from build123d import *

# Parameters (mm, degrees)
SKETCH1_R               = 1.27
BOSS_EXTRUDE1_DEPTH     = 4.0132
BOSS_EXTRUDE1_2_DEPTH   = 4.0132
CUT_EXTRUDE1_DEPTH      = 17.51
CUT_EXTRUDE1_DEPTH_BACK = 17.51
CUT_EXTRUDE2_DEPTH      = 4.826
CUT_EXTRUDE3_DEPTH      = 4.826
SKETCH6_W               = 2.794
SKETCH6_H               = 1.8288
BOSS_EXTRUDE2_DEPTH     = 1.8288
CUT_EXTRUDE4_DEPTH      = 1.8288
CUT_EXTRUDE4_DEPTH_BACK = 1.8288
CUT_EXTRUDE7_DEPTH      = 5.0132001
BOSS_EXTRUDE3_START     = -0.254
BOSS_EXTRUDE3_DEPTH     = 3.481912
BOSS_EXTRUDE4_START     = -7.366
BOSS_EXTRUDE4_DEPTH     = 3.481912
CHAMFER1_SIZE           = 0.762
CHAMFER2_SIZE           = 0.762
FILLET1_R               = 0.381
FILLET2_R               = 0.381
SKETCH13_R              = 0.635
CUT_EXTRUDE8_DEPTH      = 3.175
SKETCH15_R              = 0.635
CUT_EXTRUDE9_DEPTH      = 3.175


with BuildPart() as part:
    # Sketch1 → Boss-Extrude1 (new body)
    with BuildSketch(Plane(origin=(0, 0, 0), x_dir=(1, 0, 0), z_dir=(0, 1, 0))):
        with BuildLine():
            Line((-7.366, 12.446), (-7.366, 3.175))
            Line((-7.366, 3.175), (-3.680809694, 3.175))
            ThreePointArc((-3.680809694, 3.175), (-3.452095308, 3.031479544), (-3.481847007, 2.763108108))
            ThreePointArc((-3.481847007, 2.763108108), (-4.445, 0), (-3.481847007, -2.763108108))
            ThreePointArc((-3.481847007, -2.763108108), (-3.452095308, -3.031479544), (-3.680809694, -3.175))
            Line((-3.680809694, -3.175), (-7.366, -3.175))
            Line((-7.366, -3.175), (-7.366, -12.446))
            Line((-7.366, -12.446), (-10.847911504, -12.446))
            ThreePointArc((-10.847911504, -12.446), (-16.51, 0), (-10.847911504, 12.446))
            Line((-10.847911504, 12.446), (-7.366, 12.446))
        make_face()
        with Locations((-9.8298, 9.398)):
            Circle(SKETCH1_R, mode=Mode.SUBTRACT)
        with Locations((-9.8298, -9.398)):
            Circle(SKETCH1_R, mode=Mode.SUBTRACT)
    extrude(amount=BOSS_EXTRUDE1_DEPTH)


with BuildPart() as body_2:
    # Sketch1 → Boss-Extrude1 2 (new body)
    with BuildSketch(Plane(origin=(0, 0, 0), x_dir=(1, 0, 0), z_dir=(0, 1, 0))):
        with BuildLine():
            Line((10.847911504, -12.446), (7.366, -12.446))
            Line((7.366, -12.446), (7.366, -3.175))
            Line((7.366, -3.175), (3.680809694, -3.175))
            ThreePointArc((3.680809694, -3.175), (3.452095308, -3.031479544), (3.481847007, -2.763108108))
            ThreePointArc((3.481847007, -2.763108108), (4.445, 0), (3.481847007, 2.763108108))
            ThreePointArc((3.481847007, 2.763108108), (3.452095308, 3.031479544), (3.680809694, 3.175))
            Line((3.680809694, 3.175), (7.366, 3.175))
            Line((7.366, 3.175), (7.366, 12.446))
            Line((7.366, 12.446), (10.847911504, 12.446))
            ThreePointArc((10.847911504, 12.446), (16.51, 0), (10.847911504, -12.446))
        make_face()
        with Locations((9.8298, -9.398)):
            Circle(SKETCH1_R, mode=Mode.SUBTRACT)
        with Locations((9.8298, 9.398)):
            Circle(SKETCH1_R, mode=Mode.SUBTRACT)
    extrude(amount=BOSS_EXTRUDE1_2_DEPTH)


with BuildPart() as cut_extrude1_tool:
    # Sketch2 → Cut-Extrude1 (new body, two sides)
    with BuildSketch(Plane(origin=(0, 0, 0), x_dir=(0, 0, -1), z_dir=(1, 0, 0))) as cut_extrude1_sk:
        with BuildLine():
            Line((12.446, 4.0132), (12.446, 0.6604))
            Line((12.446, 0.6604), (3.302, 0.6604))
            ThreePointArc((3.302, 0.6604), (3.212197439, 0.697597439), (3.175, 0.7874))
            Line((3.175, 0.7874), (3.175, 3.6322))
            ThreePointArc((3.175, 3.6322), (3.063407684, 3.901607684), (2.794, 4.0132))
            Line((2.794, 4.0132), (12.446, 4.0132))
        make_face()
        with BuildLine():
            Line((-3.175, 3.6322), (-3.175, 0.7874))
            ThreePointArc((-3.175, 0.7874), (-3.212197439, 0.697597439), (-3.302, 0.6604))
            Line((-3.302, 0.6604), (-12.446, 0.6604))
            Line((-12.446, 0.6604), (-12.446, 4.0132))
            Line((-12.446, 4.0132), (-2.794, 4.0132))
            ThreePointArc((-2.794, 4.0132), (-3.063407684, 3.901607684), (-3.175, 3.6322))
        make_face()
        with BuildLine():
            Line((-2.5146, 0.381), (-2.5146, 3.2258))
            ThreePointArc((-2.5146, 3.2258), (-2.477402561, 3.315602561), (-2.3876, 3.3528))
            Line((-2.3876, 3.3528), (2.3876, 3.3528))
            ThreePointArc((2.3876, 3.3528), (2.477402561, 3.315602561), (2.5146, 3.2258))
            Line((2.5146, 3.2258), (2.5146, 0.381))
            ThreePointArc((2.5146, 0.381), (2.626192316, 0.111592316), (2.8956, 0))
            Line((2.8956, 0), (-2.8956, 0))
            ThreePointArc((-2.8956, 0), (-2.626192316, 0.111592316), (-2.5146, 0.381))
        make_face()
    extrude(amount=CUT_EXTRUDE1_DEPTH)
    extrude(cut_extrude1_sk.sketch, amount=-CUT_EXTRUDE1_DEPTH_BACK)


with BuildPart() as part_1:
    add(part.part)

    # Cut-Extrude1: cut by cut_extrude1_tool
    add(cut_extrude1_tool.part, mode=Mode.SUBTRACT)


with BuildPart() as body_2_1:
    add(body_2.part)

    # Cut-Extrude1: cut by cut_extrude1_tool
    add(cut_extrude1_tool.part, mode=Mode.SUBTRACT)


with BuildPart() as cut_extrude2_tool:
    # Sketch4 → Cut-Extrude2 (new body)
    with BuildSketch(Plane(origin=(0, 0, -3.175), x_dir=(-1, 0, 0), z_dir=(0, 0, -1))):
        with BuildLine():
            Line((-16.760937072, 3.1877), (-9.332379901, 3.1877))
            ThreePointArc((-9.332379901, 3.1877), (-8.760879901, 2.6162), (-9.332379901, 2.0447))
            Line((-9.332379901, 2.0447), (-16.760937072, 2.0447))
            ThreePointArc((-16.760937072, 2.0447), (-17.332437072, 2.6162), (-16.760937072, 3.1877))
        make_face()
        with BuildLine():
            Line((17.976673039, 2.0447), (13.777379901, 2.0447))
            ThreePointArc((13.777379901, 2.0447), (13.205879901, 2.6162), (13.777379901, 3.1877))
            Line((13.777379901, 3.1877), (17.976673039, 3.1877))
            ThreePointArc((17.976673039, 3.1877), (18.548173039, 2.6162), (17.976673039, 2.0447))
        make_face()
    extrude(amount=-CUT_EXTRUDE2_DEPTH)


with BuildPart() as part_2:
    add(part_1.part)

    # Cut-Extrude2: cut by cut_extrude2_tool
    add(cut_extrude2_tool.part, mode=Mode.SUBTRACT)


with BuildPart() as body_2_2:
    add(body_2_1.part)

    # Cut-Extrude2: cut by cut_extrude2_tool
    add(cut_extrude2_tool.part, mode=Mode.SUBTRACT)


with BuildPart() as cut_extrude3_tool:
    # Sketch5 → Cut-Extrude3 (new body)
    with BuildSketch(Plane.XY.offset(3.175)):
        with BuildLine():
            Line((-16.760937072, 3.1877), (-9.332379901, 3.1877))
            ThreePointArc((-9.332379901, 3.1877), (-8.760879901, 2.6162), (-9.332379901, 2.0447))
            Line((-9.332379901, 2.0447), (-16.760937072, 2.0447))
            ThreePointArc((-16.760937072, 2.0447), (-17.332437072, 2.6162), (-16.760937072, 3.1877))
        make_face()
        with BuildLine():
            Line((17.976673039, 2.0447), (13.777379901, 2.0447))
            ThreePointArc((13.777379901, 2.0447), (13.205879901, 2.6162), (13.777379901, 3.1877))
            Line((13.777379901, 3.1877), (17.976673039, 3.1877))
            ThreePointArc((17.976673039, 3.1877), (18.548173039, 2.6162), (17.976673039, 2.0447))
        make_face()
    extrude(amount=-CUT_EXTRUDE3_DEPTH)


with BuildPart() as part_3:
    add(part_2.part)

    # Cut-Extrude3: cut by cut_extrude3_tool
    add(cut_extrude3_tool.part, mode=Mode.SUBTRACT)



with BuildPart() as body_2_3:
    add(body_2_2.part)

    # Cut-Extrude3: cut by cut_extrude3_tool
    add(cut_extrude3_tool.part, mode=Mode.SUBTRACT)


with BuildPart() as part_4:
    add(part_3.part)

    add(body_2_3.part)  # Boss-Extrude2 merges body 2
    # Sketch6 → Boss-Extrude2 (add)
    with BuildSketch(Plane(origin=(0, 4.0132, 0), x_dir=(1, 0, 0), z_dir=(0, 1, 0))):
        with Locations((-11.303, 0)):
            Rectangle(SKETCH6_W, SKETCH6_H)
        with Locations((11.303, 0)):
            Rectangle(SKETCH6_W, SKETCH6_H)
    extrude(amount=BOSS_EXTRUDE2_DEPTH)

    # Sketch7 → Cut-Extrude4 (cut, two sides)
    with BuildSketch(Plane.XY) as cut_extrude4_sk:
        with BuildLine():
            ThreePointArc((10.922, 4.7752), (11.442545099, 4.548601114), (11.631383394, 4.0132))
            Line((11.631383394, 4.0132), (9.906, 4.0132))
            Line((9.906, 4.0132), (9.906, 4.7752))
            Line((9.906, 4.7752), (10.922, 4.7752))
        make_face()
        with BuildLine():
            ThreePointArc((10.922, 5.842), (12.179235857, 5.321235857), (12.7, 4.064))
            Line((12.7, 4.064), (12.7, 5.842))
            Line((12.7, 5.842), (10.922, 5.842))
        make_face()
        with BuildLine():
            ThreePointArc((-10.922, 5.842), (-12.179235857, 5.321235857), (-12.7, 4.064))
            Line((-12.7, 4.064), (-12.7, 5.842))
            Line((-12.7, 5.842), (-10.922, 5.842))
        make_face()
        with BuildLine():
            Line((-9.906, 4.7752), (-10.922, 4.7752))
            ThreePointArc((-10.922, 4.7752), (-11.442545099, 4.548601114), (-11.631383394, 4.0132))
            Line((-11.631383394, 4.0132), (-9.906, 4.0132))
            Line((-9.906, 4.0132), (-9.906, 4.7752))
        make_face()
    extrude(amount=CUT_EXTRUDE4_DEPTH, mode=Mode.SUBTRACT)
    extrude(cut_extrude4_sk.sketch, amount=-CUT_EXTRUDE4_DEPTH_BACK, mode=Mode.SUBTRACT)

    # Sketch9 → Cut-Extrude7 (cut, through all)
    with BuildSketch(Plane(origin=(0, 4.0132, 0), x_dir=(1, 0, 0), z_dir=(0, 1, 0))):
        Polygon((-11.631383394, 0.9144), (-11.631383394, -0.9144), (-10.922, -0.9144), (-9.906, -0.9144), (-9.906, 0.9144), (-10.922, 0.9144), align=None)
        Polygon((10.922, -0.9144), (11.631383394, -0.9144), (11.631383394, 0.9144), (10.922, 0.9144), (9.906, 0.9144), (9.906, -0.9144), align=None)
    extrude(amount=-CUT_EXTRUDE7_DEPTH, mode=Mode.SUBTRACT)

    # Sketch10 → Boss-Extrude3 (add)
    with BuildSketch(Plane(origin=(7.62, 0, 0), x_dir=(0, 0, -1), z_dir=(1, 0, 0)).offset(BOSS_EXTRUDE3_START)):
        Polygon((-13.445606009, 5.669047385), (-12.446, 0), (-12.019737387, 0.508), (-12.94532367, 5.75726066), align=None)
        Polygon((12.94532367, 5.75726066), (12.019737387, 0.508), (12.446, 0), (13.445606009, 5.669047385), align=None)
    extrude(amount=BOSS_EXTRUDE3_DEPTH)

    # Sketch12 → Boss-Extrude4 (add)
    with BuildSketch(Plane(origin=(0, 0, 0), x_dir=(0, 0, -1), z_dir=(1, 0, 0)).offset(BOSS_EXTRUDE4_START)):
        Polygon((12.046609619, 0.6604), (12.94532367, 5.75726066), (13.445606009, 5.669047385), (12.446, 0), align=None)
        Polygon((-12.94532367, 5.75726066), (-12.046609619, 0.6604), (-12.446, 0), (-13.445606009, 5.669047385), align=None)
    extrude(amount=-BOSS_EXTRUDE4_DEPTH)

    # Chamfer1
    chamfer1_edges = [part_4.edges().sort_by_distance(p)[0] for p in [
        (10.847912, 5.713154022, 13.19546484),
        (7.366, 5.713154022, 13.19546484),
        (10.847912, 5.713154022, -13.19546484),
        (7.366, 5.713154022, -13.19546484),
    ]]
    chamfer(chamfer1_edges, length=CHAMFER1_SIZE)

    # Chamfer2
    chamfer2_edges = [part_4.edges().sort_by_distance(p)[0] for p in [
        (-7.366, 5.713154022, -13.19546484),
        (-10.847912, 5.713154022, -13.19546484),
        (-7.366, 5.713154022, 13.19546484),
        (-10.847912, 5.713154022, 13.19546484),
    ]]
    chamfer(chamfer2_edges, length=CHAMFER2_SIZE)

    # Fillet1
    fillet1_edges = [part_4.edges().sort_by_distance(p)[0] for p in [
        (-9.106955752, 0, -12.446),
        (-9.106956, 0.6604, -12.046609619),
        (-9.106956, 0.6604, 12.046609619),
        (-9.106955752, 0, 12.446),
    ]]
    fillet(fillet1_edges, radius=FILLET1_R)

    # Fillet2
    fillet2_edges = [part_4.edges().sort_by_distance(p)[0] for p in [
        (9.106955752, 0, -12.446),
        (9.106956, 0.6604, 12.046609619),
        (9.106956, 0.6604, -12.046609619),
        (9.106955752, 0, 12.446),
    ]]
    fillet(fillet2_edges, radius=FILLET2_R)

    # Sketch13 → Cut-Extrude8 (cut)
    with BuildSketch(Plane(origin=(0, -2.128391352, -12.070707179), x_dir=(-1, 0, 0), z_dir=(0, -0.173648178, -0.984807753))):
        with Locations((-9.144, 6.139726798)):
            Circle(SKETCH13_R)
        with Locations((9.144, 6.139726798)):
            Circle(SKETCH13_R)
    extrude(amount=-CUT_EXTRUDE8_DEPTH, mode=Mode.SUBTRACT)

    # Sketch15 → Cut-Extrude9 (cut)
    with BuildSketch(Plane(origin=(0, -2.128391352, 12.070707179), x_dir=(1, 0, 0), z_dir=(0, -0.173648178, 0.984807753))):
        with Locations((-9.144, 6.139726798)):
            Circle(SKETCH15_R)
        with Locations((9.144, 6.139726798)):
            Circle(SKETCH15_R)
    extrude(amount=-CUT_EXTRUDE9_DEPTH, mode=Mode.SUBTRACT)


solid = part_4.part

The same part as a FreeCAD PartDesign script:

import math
import FreeCAD as App
import Part
import Sketcher
from FreeCAD import Vector
Q = App.Units.Quantity


def edges_at(feature, points):
    """Names of the edges that pass closest to the given points."""
    edges = feature.Shape.Edges
    near = lambda p: min(range(len(edges)), key=lambda i: edges[i].distToShape(Part.Vertex(*p))[0])
    return sorted({f"Edge{near(p) + 1}" for p in points})

doc = App.newDocument("Part")
body = doc.addObject("PartDesign::Body", "Body")

# Sketch on XZ plane
sketch1 = doc.addObject("Sketcher::SketchObject", "Sketch")
body.addObject(sketch1)
sketch1.AttachmentSupport = (doc.XZ_Plane, [""])
sketch1.MapMode = "FlatFace"
sketch1.addGeometry(Part.LineSegment(Vector(-7.37, -3.17, 0), Vector(-7.37, -12.45, 0)), False)
sketch1.addGeometry(Part.LineSegment(Vector(-7.37, -12.45, 0), Vector(-10.85, -12.45, 0)), False)
sketch1.addGeometry(Part.ArcOfCircle(Part.Circle(Vector(0, 0, 0), Vector(0, 0, 1), 16.51), math.radians(131), math.radians(229)), False)
sketch1.addGeometry(Part.LineSegment(Vector(-10.85, 12.45, 0), Vector(-7.37, 12.45, 0)), False)
sketch1.addGeometry(Part.LineSegment(Vector(-7.37, 12.45, 0), Vector(-7.37, 3.17, 0)), False)
sketch1.addGeometry(Part.LineSegment(Vector(-7.37, 3.17, 0), Vector(-3.68, 3.17, 0)), False)
sketch1.addGeometry(Part.ArcOfCircle(Part.Circle(Vector(-3.68, 2.92, 0), Vector(0, 0, 1), 0.25), math.radians(-38), math.radians(90)), False)
sketch1.addGeometry(Part.ArcOfCircle(Part.Circle(Vector(0, 0, 0), Vector(0, 0, 1), 4.44), math.radians(142), math.radians(218)), False)
sketch1.addGeometry(Part.ArcOfCircle(Part.Circle(Vector(-3.68, -2.92, 0), Vector(0, 0, 1), 0.25), math.radians(-90), math.radians(38)), False)
sketch1.addGeometry(Part.LineSegment(Vector(-3.68, -3.17, 0), Vector(-7.37, -3.17, 0)), False)
sketch1.addGeometry(Part.Circle(Vector(-9.83, 9.4, 0), Vector(0, 0, 1), 1.27), False)
sketch1.addGeometry(Part.Circle(Vector(-9.83, -9.4, 0), Vector(0, 0, 1), 1.27), False)
sketch1.addConstraint(Sketcher.Constraint("Coincident", 0, 2, 1, 1))
sketch1.addConstraint(Sketcher.Constraint("Coincident", 1, 2, 2, 2))
sketch1.addConstraint(Sketcher.Constraint("Coincident", 2, 1, 3, 1))
sketch1.addConstraint(Sketcher.Constraint("Coincident", 3, 2, 4, 1))
sketch1.addConstraint(Sketcher.Constraint("Coincident", 4, 2, 5, 1))
sketch1.addConstraint(Sketcher.Constraint("Tangent", 5, 2, 6, 2))
sketch1.addConstraint(Sketcher.Constraint("Tangent", 6, 1, 7, 1))
sketch1.addConstraint(Sketcher.Constraint("Tangent", 7, 2, 8, 2))
sketch1.addConstraint(Sketcher.Constraint("Tangent", 8, 1, 9, 1))
sketch1.addConstraint(Sketcher.Constraint("Coincident", 9, 2, 0, 1))
sketch1.addConstraint(Sketcher.Constraint("Vertical", 0))
sketch1.addConstraint(Sketcher.Constraint("Horizontal", 1))
sketch1.addConstraint(Sketcher.Constraint("Horizontal", 3))
sketch1.addConstraint(Sketcher.Constraint("Vertical", 4))
sketch1.addConstraint(Sketcher.Constraint("Horizontal", 5))
sketch1.addConstraint(Sketcher.Constraint("Horizontal", 9))
sketch1.addConstraint(Sketcher.Constraint("Coincident", 2, 3, -1, 1))
sketch1.addConstraint(Sketcher.Constraint("Coincident", 7, 3, -1, 1))
sketch1.addConstraint(Sketcher.Constraint("Equal", 6, 8))
sketch1.addConstraint(Sketcher.Constraint("Equal", 10, 11))
sketch1.addConstraint(Sketcher.Constraint("Symmetric", 10, 3, 11, 3, -1))
sketch1.addConstraint(Sketcher.Constraint("Symmetric", 0, 2, 3, 2, -1))
sketch1.addConstraint(Sketcher.Constraint("Vertical", 6, 3, 8, 3))
sketch1.addConstraint(Sketcher.Constraint("Diameter", 10, Q("0.1 in")))
sketch1.addConstraint(Sketcher.Constraint("Radius", 2, Q("0.65 in")))
sketch1.addConstraint(Sketcher.Constraint("Radius", 6, Q("0.01 in")))
sketch1.addConstraint(Sketcher.Constraint("Radius", 7, Q("0.175 in")))
sketch1.addConstraint(Sketcher.Constraint("DistanceY", 0, 2, 0, 1, Q("0.365 in")))
sketch1.addConstraint(Sketcher.Constraint("DistanceY", -1, 1, 10, 3, Q("0.37 in")))
sketch1.addConstraint(Sketcher.Constraint("DistanceX", 0, 2, -1, 1, Q("0.29 in")))
sketch1.addConstraint(Sketcher.Constraint("DistanceY", 0, 2, -1, 1, Q("0.49 in")))
sketch1.addConstraint(Sketcher.Constraint("DistanceX", 10, 3, -1, 1, Q("0.387 in")))
pad1 = doc.addObject("PartDesign::Pad", "Pad")
body.addObject(pad1)
pad1.Profile = sketch1
pad1.Length = Q("0.158 in")
pad1.Reversed = True
body2 = doc.addObject("PartDesign::Body", "Body001")

# Sketch on XZ plane
sketch2 = doc.addObject("Sketcher::SketchObject", "Sketch001")
body2.addObject(sketch2)
sketch2.AttachmentSupport = (doc.getObject("XZ_Plane001"), [""])
sketch2.MapMode = "FlatFace"
sketch2.addGeometry(Part.LineSegment(Vector(7.37, 12.45, 0), Vector(10.85, 12.45, 0)), False)
sketch2.addGeometry(Part.ArcOfCircle(Part.Circle(Vector(0, 0, 0), Vector(0, 0, 1), 16.51), math.radians(-49), math.radians(49)), False)
sketch2.addGeometry(Part.LineSegment(Vector(10.85, -12.45, 0), Vector(7.37, -12.45, 0)), False)
sketch2.addGeometry(Part.LineSegment(Vector(7.37, -12.45, 0), Vector(7.37, -3.17, 0)), False)
sketch2.addGeometry(Part.LineSegment(Vector(7.37, -3.17, 0), Vector(3.68, -3.17, 0)), False)
sketch2.addGeometry(Part.ArcOfCircle(Part.Circle(Vector(3.68, -2.92, 0), Vector(0, 0, 1), 0.25), math.radians(142), math.radians(270)), False)
sketch2.addGeometry(Part.ArcOfCircle(Part.Circle(Vector(0, 0, 0), Vector(0, 0, 1), 4.44), math.radians(-38), math.radians(38)), False)
sketch2.addGeometry(Part.ArcOfCircle(Part.Circle(Vector(3.68, 2.92, 0), Vector(0, 0, 1), 0.25), math.radians(90), math.radians(218)), False)
sketch2.addGeometry(Part.LineSegment(Vector(3.68, 3.17, 0), Vector(7.37, 3.17, 0)), False)
sketch2.addGeometry(Part.LineSegment(Vector(7.37, 3.17, 0), Vector(7.37, 12.45, 0)), False)
sketch2.addGeometry(Part.Circle(Vector(9.83, 9.4, 0), Vector(0, 0, 1), 1.27), False)
sketch2.addGeometry(Part.Circle(Vector(9.83, -9.4, 0), Vector(0, 0, 1), 1.27), False)
sketch2.addConstraint(Sketcher.Constraint("Coincident", 0, 2, 1, 2))
sketch2.addConstraint(Sketcher.Constraint("Coincident", 1, 1, 2, 1))
sketch2.addConstraint(Sketcher.Constraint("Coincident", 2, 2, 3, 1))
sketch2.addConstraint(Sketcher.Constraint("Coincident", 3, 2, 4, 1))
sketch2.addConstraint(Sketcher.Constraint("Tangent", 4, 2, 5, 2))
sketch2.addConstraint(Sketcher.Constraint("Tangent", 5, 1, 6, 1))
sketch2.addConstraint(Sketcher.Constraint("Tangent", 6, 2, 7, 2))
sketch2.addConstraint(Sketcher.Constraint("Tangent", 7, 1, 8, 1))
sketch2.addConstraint(Sketcher.Constraint("Coincident", 8, 2, 9, 1))
sketch2.addConstraint(Sketcher.Constraint("Coincident", 9, 2, 0, 1))
sketch2.addConstraint(Sketcher.Constraint("Horizontal", 0))
sketch2.addConstraint(Sketcher.Constraint("Horizontal", 2))
sketch2.addConstraint(Sketcher.Constraint("Vertical", 3))
sketch2.addConstraint(Sketcher.Constraint("Horizontal", 4))
sketch2.addConstraint(Sketcher.Constraint("Horizontal", 8))
sketch2.addConstraint(Sketcher.Constraint("Vertical", 9))
sketch2.addConstraint(Sketcher.Constraint("Coincident", 1, 3, -1, 1))
sketch2.addConstraint(Sketcher.Constraint("Coincident", 6, 3, -1, 1))
sketch2.addConstraint(Sketcher.Constraint("Equal", 5, 7))
sketch2.addConstraint(Sketcher.Constraint("Equal", 10, 11))
sketch2.addConstraint(Sketcher.Constraint("Symmetric", 10, 3, 11, 3, -1))
sketch2.addConstraint(Sketcher.Constraint("Symmetric", 3, 2, 8, 2, -1))
sketch2.addConstraint(Sketcher.Constraint("Vertical", 0, 2, 1, 1))
sketch2.addConstraint(Sketcher.Constraint("Diameter", 10, Q("0.1 in")))
sketch2.addConstraint(Sketcher.Constraint("Radius", 1, Q("0.65 in")))
sketch2.addConstraint(Sketcher.Constraint("Radius", 5, Q("0.01 in")))
sketch2.addConstraint(Sketcher.Constraint("Radius", 6, Q("0.175 in")))
sketch2.addConstraint(Sketcher.Constraint("DistanceY", 3, 1, 3, 2, Q("0.365 in")))
sketch2.addConstraint(Sketcher.Constraint("DistanceY", -1, 1, 10, 3, Q("0.37 in")))
sketch2.addConstraint(Sketcher.Constraint("DistanceY", -1, 1, 0, 2, Q("0.49 in")))
sketch2.addConstraint(Sketcher.Constraint("DistanceX", -1, 1, 2, 2, Q("0.29 in")))
sketch2.addConstraint(Sketcher.Constraint("DistanceX", -1, 1, 10, 3, Q("0.387 in")))
pad2 = doc.addObject("PartDesign::Pad", "Pad001")
body2.addObject(pad2)
pad2.Profile = sketch2
pad2.Length = Q("0.158 in")
pad2.Reversed = True
body3 = doc.addObject("PartDesign::Body", "Body002")
body3.AllowCompound = True

# Sketch on YZ plane
sketch3 = doc.addObject("Sketcher::SketchObject", "Sketch002")
body3.addObject(sketch3)
sketch3.AttachmentSupport = (doc.getObject("YZ_Plane002"), [""])
sketch3.MapMode = "FlatFace"
sketch3.addGeometry(Part.LineSegment(Vector(0.66, -12.45, 0), Vector(4.01, -12.45, 0)), False)
sketch3.addGeometry(Part.LineSegment(Vector(4.01, -12.45, 0), Vector(4.01, -2.79, 0)), False)
sketch3.addGeometry(Part.ArcOfCircle(Part.Circle(Vector(3.63, -2.79, 0), Vector(0, 0, 1), 0.38), math.radians(-90), math.radians(0)), False)
sketch3.addGeometry(Part.LineSegment(Vector(3.63, -3.17, 0), Vector(0.79, -3.17, 0)), False)
sketch3.addGeometry(Part.ArcOfCircle(Part.Circle(Vector(0.79, -3.3, 0), Vector(0, 0, 1), 0.13), math.radians(90), math.radians(180)), False)
sketch3.addGeometry(Part.LineSegment(Vector(0.66, -3.3, 0), Vector(0.66, -12.45, 0)), False)
sketch3.addGeometry(Part.LineSegment(Vector(0.79, 3.17, 0), Vector(3.63, 3.17, 0)), False)
sketch3.addGeometry(Part.ArcOfCircle(Part.Circle(Vector(3.63, 2.79, 0), Vector(0, 0, 1), 0.38), math.radians(0), math.radians(90)), False)
sketch3.addGeometry(Part.LineSegment(Vector(4.01, 2.79, 0), Vector(4.01, 12.45, 0)), False)
sketch3.addGeometry(Part.LineSegment(Vector(4.01, 12.45, 0), Vector(0.66, 12.45, 0)), False)
sketch3.addGeometry(Part.LineSegment(Vector(0.66, 12.45, 0), Vector(0.66, 3.3, 0)), False)
sketch3.addGeometry(Part.ArcOfCircle(Part.Circle(Vector(0.79, 3.3, 0), Vector(0, 0, 1), 0.13), math.radians(-180), math.radians(-90)), False)
sketch3.addGeometry(Part.LineSegment(Vector(3.23, 2.51, 0), Vector(0.38, 2.51, 0)), False)
sketch3.addGeometry(Part.ArcOfCircle(Part.Circle(Vector(0.38, 2.9, 0), Vector(0, 0, 1), 0.38), math.radians(180), math.radians(270)), False)
sketch3.addGeometry(Part.LineSegment(Vector(0, 2.9, 0), Vector(0, -2.9, 0)), False)
sketch3.addGeometry(Part.ArcOfCircle(Part.Circle(Vector(0.38, -2.9, 0), Vector(0, 0, 1), 0.38), math.radians(90), math.radians(180)), False)
sketch3.addGeometry(Part.LineSegment(Vector(0.38, -2.51, 0), Vector(3.23, -2.51, 0)), False)
sketch3.addGeometry(Part.ArcOfCircle(Part.Circle(Vector(3.23, -2.39, 0), Vector(0, 0, 1), 0.13), math.radians(-90), math.radians(0)), False)
sketch3.addGeometry(Part.LineSegment(Vector(3.35, -2.39, 0), Vector(3.35, 2.39, 0)), False)
sketch3.addGeometry(Part.ArcOfCircle(Part.Circle(Vector(3.23, 2.39, 0), Vector(0, 0, 1), 0.13), math.radians(0), math.radians(90)), False)
sketch3.addConstraint(Sketcher.Constraint("Coincident", 0, 2, 1, 1))
sketch3.addConstraint(Sketcher.Constraint("Tangent", 1, 2, 2, 2))
sketch3.addConstraint(Sketcher.Constraint("Tangent", 2, 1, 3, 1))
sketch3.addConstraint(Sketcher.Constraint("Tangent", 3, 2, 4, 1))
sketch3.addConstraint(Sketcher.Constraint("Tangent", 4, 2, 5, 1))
sketch3.addConstraint(Sketcher.Constraint("Coincident", 5, 2, 0, 1))
sketch3.addConstraint(Sketcher.Constraint("Tangent", 6, 2, 7, 2))
sketch3.addConstraint(Sketcher.Constraint("Tangent", 7, 1, 8, 1))
sketch3.addConstraint(Sketcher.Constraint("Coincident", 8, 2, 9, 1))
sketch3.addConstraint(Sketcher.Constraint("Coincident", 9, 2, 10, 1))
sketch3.addConstraint(Sketcher.Constraint("Tangent", 10, 2, 11, 1))
sketch3.addConstraint(Sketcher.Constraint("Tangent", 11, 2, 6, 1))
sketch3.addConstraint(Sketcher.Constraint("Tangent", 12, 2, 13, 2))
sketch3.addConstraint(Sketcher.Constraint("Tangent", 13, 1, 14, 1))
sketch3.addConstraint(Sketcher.Constraint("Tangent", 14, 2, 15, 2))
sketch3.addConstraint(Sketcher.Constraint("Tangent", 15, 1, 16, 1))
sketch3.addConstraint(Sketcher.Constraint("Tangent", 16, 2, 17, 1))
sketch3.addConstraint(Sketcher.Constraint("Tangent", 17, 2, 18, 1))
sketch3.addConstraint(Sketcher.Constraint("Tangent", 18, 2, 19, 1))
sketch3.addConstraint(Sketcher.Constraint("Tangent", 19, 2, 12, 1))
sketch3.addConstraint(Sketcher.Constraint("Horizontal", 0))
sketch3.addConstraint(Sketcher.Constraint("Vertical", 1))
sketch3.addConstraint(Sketcher.Constraint("Horizontal", 3))
sketch3.addConstraint(Sketcher.Constraint("Vertical", 5))
sketch3.addConstraint(Sketcher.Constraint("Horizontal", 6))
sketch3.addConstraint(Sketcher.Constraint("Vertical", 8))
sketch3.addConstraint(Sketcher.Constraint("Horizontal", 9))
sketch3.addConstraint(Sketcher.Constraint("Vertical", 10))
sketch3.addConstraint(Sketcher.Constraint("Horizontal", 12))
sketch3.addConstraint(Sketcher.Constraint("Vertical", 14))
sketch3.addConstraint(Sketcher.Constraint("Horizontal", 16))
sketch3.addConstraint(Sketcher.Constraint("Vertical", 18))
sketch3.addConstraint(Sketcher.Constraint("Equal", 2, 7))
sketch3.addConstraint(Sketcher.Constraint("Equal", 4, 11))
sketch3.addConstraint(Sketcher.Constraint("Equal", 7, 13))
sketch3.addConstraint(Sketcher.Constraint("Equal", 13, 15))
sketch3.addConstraint(Sketcher.Constraint("Equal", 11, 17))
sketch3.addConstraint(Sketcher.Constraint("Equal", 17, 19))
sketch3.addConstraint(Sketcher.Constraint("Symmetric", 13, 1, 14, 2, -1, 1))
sketch3.addConstraint(Sketcher.Constraint("Symmetric", 2, 3, 7, 3, -1))
sketch3.addConstraint(Sketcher.Constraint("Symmetric", 5, 2, 9, 2, -1))
sketch3.addConstraint(Sketcher.Constraint("Equal", 6, 12))
sketch3.addConstraint(Sketcher.Constraint("Radius", 2, Q("0.015 in")))
sketch3.addConstraint(Sketcher.Constraint("Radius", 4, Q("0.005 in")))
sketch3.addConstraint(Sketcher.Constraint("DistanceY", 1, 1, 1, 2, Q("0.38 in")))
sketch3.addConstraint(Sketcher.Constraint("DistanceX", 0, 1, 0, 2, Q("0.132 in")))
sketch3.addConstraint(Sketcher.Constraint("DistanceY", 14, 2, 14, 1, Q("0.228 in")))
sketch3.addConstraint(Sketcher.Constraint("DistanceY", 2, 3, -1, 1, Q("0.11 in")))
sketch3.addConstraint(Sketcher.Constraint("DistanceX", -1, 1, 2, 3, Q("0.143 in")))
pad3 = doc.addObject("PartDesign::Pad", "Pad002")
body3.addObject(pad3)
pad3.Profile = sketch3
pad3.Type = "TwoLengths"
pad3.Length = 17.51
pad3.Length2 = 17.51
doc.recompute()

body4 = doc.addObject("PartDesign::Body", "Body003")
body4.BaseFeature = body3
boolean = doc.addObject("PartDesign::Boolean", "Boolean")
body.addObject(boolean)
boolean.Type = "Cut"
boolean.addObjects([body4])
doc.recompute()

boolean2 = doc.addObject("PartDesign::Boolean", "Boolean001")
body2.addObject(boolean2)
boolean2.Type = "Cut"
boolean2.addObjects([body3])
body5 = doc.addObject("PartDesign::Body", "Body004")
body5.AllowCompound = True

# Sketch on XY plane
sketch4 = doc.addObject("Sketcher::SketchObject", "Sketch003")
body5.addObject(sketch4)
sketch4.AttachmentSupport = (doc.getObject("XY_Plane004"), [""])
sketch4.MapMode = "FlatFace"
sketch4.AttachmentOffset = App.Placement(Vector(0, 0, -0.125 * 25.4), App.Rotation())
sketch4.addGeometry(Part.LineSegment(Vector(9.3, 3.2, 0), Vector(16.8, 3.2, 0)), False)
sketch4.addGeometry(Part.ArcOfCircle(Part.Circle(Vector(16.8, 2.6, 0), Vector(0, 0, 1), 0.6), math.radians(-90), math.radians(90)), False)
sketch4.addGeometry(Part.LineSegment(Vector(16.8, 2, 0), Vector(9.3, 2, 0)), False)
sketch4.addGeometry(Part.ArcOfCircle(Part.Circle(Vector(9.3, 2.6, 0), Vector(0, 0, 1), 0.6), math.radians(90), math.radians(270)), False)
sketch4.addGeometry(Part.LineSegment(Vector(-13.8, 2, 0), Vector(-18, 2, 0)), False)
sketch4.addGeometry(Part.ArcOfCircle(Part.Circle(Vector(-18, 2.6, 0), Vector(0, 0, 1), 0.6), math.radians(90), math.radians(270)), False)
sketch4.addGeometry(Part.LineSegment(Vector(-18, 3.2, 0), Vector(-13.8, 3.2, 0)), False)
sketch4.addGeometry(Part.ArcOfCircle(Part.Circle(Vector(-13.8, 2.6, 0), Vector(0, 0, 1), 0.6), math.radians(-90), math.radians(90)), False)
sketch4.addConstraint(Sketcher.Constraint("Tangent", 0, 2, 1, 2))
sketch4.addConstraint(Sketcher.Constraint("Tangent", 1, 1, 2, 1))
sketch4.addConstraint(Sketcher.Constraint("Tangent", 2, 2, 3, 2))
sketch4.addConstraint(Sketcher.Constraint("Tangent", 3, 1, 0, 1))
sketch4.addConstraint(Sketcher.Constraint("Tangent", 4, 2, 5, 2))
sketch4.addConstraint(Sketcher.Constraint("Tangent", 5, 1, 6, 1))
sketch4.addConstraint(Sketcher.Constraint("Tangent", 6, 2, 7, 2))
sketch4.addConstraint(Sketcher.Constraint("Tangent", 7, 1, 4, 1))
sketch4.addConstraint(Sketcher.Constraint("Horizontal", 0))
sketch4.addConstraint(Sketcher.Constraint("Horizontal", 2))
sketch4.addConstraint(Sketcher.Constraint("Horizontal", 4))
sketch4.addConstraint(Sketcher.Constraint("Horizontal", 6))
sketch4.addConstraint(Sketcher.Constraint("Equal", 3, 5))
sketch4.addConstraint(Sketcher.Constraint("Horizontal", 3, 3, 5, 3))
sketch4.addConstraint(Sketcher.Constraint("Radius", 1, Q("0.0225 in")))
sketch4.addConstraint(Sketcher.Constraint("DistanceY", -1, 1, 1, 3, Q("0.103 in")))
sketch4.addConstraint(Sketcher.Constraint("DistanceX", 0, 1, 0, 2, 7.428557))
sketch4.addConstraint(Sketcher.Constraint("DistanceX", 4, 2, 4, 1, 4.199293))
sketch4.addConstraint(Sketcher.Constraint("DistanceX", -1, 1, 3, 3, 9.33238))
sketch4.addConstraint(Sketcher.Constraint("DistanceX", 7, 3, -1, 1, 13.77738))
pad4 = doc.addObject("PartDesign::Pad", "Pad003")
body5.addObject(pad4)
pad4.Profile = sketch4
pad4.Length = Q("0.19 in")
doc.recompute()

body6 = doc.addObject("PartDesign::Body", "Body005")
body6.BaseFeature = body5
boolean3 = doc.addObject("PartDesign::Boolean", "Boolean002")
body.addObject(boolean3)
boolean3.Type = "Cut"
boolean3.addObjects([body6])
doc.recompute()

boolean4 = doc.addObject("PartDesign::Boolean", "Boolean003")
body2.addObject(boolean4)
boolean4.Type = "Cut"
boolean4.addObjects([body5])
body7 = doc.addObject("PartDesign::Body", "Body006")
body7.AllowCompound = True

# Sketch on XY plane
sketch5 = doc.addObject("Sketcher::SketchObject", "Sketch004")
body7.addObject(sketch5)
sketch5.AttachmentSupport = (doc.getObject("XY_Plane006"), [""])
sketch5.MapMode = "FlatFace"
sketch5.AttachmentOffset = App.Placement(Vector(0, 0, 0.125 * 25.4), App.Rotation())
sketch5.addGeometry(Part.LineSegment(Vector(-9.3, 3.2, 0), Vector(-16.8, 3.2, 0)), False)
sketch5.addGeometry(Part.ArcOfCircle(Part.Circle(Vector(-16.8, 2.6, 0), Vector(0, 0, 1), 0.6), math.radians(90), math.radians(270)), False)
sketch5.addGeometry(Part.LineSegment(Vector(-16.8, 2, 0), Vector(-9.3, 2, 0)), False)
sketch5.addGeometry(Part.ArcOfCircle(Part.Circle(Vector(-9.3, 2.6, 0), Vector(0, 0, 1), 0.6), math.radians(-90), math.radians(90)), False)
sketch5.addGeometry(Part.LineSegment(Vector(13.8, 2, 0), Vector(18, 2, 0)), False)
sketch5.addGeometry(Part.ArcOfCircle(Part.Circle(Vector(18, 2.6, 0), Vector(0, 0, 1), 0.6), math.radians(-90), math.radians(90)), False)
sketch5.addGeometry(Part.LineSegment(Vector(18, 3.2, 0), Vector(13.8, 3.2, 0)), False)
sketch5.addGeometry(Part.ArcOfCircle(Part.Circle(Vector(13.8, 2.6, 0), Vector(0, 0, 1), 0.6), math.radians(90), math.radians(270)), False)
sketch5.addConstraint(Sketcher.Constraint("Tangent", 0, 2, 1, 1))
sketch5.addConstraint(Sketcher.Constraint("Tangent", 1, 2, 2, 1))
sketch5.addConstraint(Sketcher.Constraint("Tangent", 2, 2, 3, 1))
sketch5.addConstraint(Sketcher.Constraint("Tangent", 3, 2, 0, 1))
sketch5.addConstraint(Sketcher.Constraint("Tangent", 4, 2, 5, 1))
sketch5.addConstraint(Sketcher.Constraint("Tangent", 5, 2, 6, 1))
sketch5.addConstraint(Sketcher.Constraint("Tangent", 6, 2, 7, 1))
sketch5.addConstraint(Sketcher.Constraint("Tangent", 7, 2, 4, 1))
sketch5.addConstraint(Sketcher.Constraint("Horizontal", 0))
sketch5.addConstraint(Sketcher.Constraint("Horizontal", 2))
sketch5.addConstraint(Sketcher.Constraint("Horizontal", 4))
sketch5.addConstraint(Sketcher.Constraint("Horizontal", 6))
sketch5.addConstraint(Sketcher.Constraint("Equal", 3, 5))
sketch5.addConstraint(Sketcher.Constraint("Horizontal", 3, 3, 5, 3))
sketch5.addConstraint(Sketcher.Constraint("Radius", 1, Q("0.0225 in")))
sketch5.addConstraint(Sketcher.Constraint("DistanceY", -1, 1, 1, 3, Q("0.103 in")))
sketch5.addConstraint(Sketcher.Constraint("DistanceX", 0, 2, 0, 1, 7.428557))
sketch5.addConstraint(Sketcher.Constraint("DistanceX", 4, 1, 4, 2, 4.199293))
sketch5.addConstraint(Sketcher.Constraint("DistanceX", 3, 3, -1, 1, 9.33238))
sketch5.addConstraint(Sketcher.Constraint("DistanceX", -1, 1, 7, 3, 13.77738))
pad5 = doc.addObject("PartDesign::Pad", "Pad004")
body7.addObject(pad5)
pad5.Profile = sketch5
pad5.Length = Q("0.19 in")
pad5.Reversed = True
doc.recompute()

body8 = doc.addObject("PartDesign::Body", "Body007")
body8.BaseFeature = body7
boolean5 = doc.addObject("PartDesign::Boolean", "Boolean004")
body.addObject(boolean5)
boolean5.Type = "Cut"
boolean5.addObjects([body8])
doc.recompute()

boolean6 = doc.addObject("PartDesign::Boolean", "Boolean005")
body2.addObject(boolean6)
boolean6.Type = "Cut"
boolean6.addObjects([body7])
body.AllowCompound = True
doc.recompute()

boolean7 = doc.addObject("PartDesign::Boolean", "Boolean006")
body.addObject(boolean7)
boolean7.Type = "Fuse"
boolean7.addObjects([body2])

# Sketch on XZ plane
sketch6 = doc.addObject("Sketcher::SketchObject", "Sketch005")
body.addObject(sketch6)
sketch6.AttachmentSupport = (doc.XZ_Plane, [""])
sketch6.MapMode = "FlatFace"
sketch6.AttachmentOffset = App.Placement(Vector(0, 0, -0.158 * 25.4), App.Rotation())
sketch6.addGeometry(Part.LineSegment(Vector(-12.7, -0.9, 0), Vector(-12.7, 0.9, 0)), False)
sketch6.addGeometry(Part.LineSegment(Vector(-12.7, 0.9, 0), Vector(-9.9, 0.9, 0)), False)
sketch6.addGeometry(Part.LineSegment(Vector(-9.9, 0.9, 0), Vector(-9.9, -0.9, 0)), False)
sketch6.addGeometry(Part.LineSegment(Vector(-9.9, -0.9, 0), Vector(-12.7, -0.9, 0)), False)
sketch6.addGeometry(Part.LineSegment(Vector(9.9, -0.9, 0), Vector(9.9, 0.9, 0)), False)
sketch6.addGeometry(Part.LineSegment(Vector(9.9, 0.9, 0), Vector(12.7, 0.9, 0)), False)
sketch6.addGeometry(Part.LineSegment(Vector(12.7, 0.9, 0), Vector(12.7, -0.9, 0)), False)
sketch6.addGeometry(Part.LineSegment(Vector(12.7, -0.9, 0), Vector(9.9, -0.9, 0)), False)
sketch6.addConstraint(Sketcher.Constraint("Coincident", 0, 2, 1, 1))
sketch6.addConstraint(Sketcher.Constraint("Coincident", 1, 2, 2, 1))
sketch6.addConstraint(Sketcher.Constraint("Coincident", 2, 2, 3, 1))
sketch6.addConstraint(Sketcher.Constraint("Coincident", 3, 2, 0, 1))
sketch6.addConstraint(Sketcher.Constraint("Coincident", 4, 2, 5, 1))
sketch6.addConstraint(Sketcher.Constraint("Coincident", 5, 2, 6, 1))
sketch6.addConstraint(Sketcher.Constraint("Coincident", 6, 2, 7, 1))
sketch6.addConstraint(Sketcher.Constraint("Coincident", 7, 2, 4, 1))
sketch6.addConstraint(Sketcher.Constraint("Vertical", 0))
sketch6.addConstraint(Sketcher.Constraint("Horizontal", 1))
sketch6.addConstraint(Sketcher.Constraint("Vertical", 2))
sketch6.addConstraint(Sketcher.Constraint("Horizontal", 3))
sketch6.addConstraint(Sketcher.Constraint("Vertical", 4))
sketch6.addConstraint(Sketcher.Constraint("Horizontal", 5))
sketch6.addConstraint(Sketcher.Constraint("Vertical", 6))
sketch6.addConstraint(Sketcher.Constraint("Horizontal", 7))
sketch6.addConstraint(Sketcher.Constraint("Symmetric", 2, 2, 4, 2, -1, 1))
sketch6.addConstraint(Sketcher.Constraint("Symmetric", 0, 2, 6, 2, -1, 1))
sketch6.addConstraint(Sketcher.Constraint("Horizontal", 1, 2, 4, 2))
sketch6.addConstraint(Sketcher.Constraint("DistanceX", 0, 2, 5, 2, Q("1 in")))
sketch6.addConstraint(Sketcher.Constraint("DistanceX", 1, 1, 1, 2, Q("0.11 in")))
sketch6.addConstraint(Sketcher.Constraint("DistanceY", 0, 1, 0, 2, Q("0.072 in")))
pad6 = doc.addObject("PartDesign::Pad", "Pad005")
body.addObject(pad6)
pad6.Profile = sketch6
pad6.Length = Q("0.072 in")
pad6.Reversed = True

# Sketch on XY plane
sketch7 = doc.addObject("Sketcher::SketchObject", "Sketch006")
body.addObject(sketch7)
sketch7.AttachmentSupport = (doc.XY_Plane, [""])
sketch7.MapMode = "FlatFace"
sketch7.addGeometry(Part.ArcOfCircle(Part.Circle(Vector(10.9, 4.1, 0), Vector(0, 0, 1), 0.7), math.radians(-4), math.radians(90)), False)
sketch7.addGeometry(Part.LineSegment(Vector(10.9, 4.8, 0), Vector(9.9, 4.8, 0)), False)
sketch7.addGeometry(Part.LineSegment(Vector(9.9, 4.8, 0), Vector(9.9, 4, 0)), False)
sketch7.addGeometry(Part.LineSegment(Vector(9.9, 4, 0), Vector(11.6, 4, 0)), False)
sketch7.addGeometry(Part.ArcOfCircle(Part.Circle(Vector(10.9, 4.1, 0), Vector(0, 0, 1), 1.8), math.radians(0), math.radians(90)), False)
sketch7.addGeometry(Part.LineSegment(Vector(12.7, 4.1, 0), Vector(12.7, 5.8, 0)), False)
sketch7.addGeometry(Part.LineSegment(Vector(12.7, 5.8, 0), Vector(10.9, 5.8, 0)), False)
sketch7.addGeometry(Part.ArcOfCircle(Part.Circle(Vector(-10.9, 4.1, 0), Vector(0, 0, 1), 1.8), math.radians(90), math.radians(180)), False)
sketch7.addGeometry(Part.LineSegment(Vector(-10.9, 5.8, 0), Vector(-12.7, 5.8, 0)), False)
sketch7.addGeometry(Part.LineSegment(Vector(-12.7, 5.8, 0), Vector(-12.7, 4.1, 0)), False)
sketch7.addGeometry(Part.LineSegment(Vector(-9.9, 4.8, 0), Vector(-10.9, 4.8, 0)), False)
sketch7.addGeometry(Part.ArcOfCircle(Part.Circle(Vector(-10.9, 4.1, 0), Vector(0, 0, 1), 0.7), math.radians(90), math.radians(184)), False)
sketch7.addGeometry(Part.LineSegment(Vector(-11.6, 4, 0), Vector(-9.9, 4, 0)), False)
sketch7.addGeometry(Part.LineSegment(Vector(-9.9, 4, 0), Vector(-9.9, 4.8, 0)), False)
sketch7.addConstraint(Sketcher.Constraint("Tangent", 0, 2, 1, 1))
sketch7.addConstraint(Sketcher.Constraint("Coincident", 1, 2, 2, 1))
sketch7.addConstraint(Sketcher.Constraint("Coincident", 2, 2, 3, 1))
sketch7.addConstraint(Sketcher.Constraint("Coincident", 3, 2, 0, 1))
sketch7.addConstraint(Sketcher.Constraint("Tangent", 4, 1, 5, 1))
sketch7.addConstraint(Sketcher.Constraint("Coincident", 5, 2, 6, 1))
sketch7.addConstraint(Sketcher.Constraint("Tangent", 6, 2, 4, 2))
sketch7.addConstraint(Sketcher.Constraint("Tangent", 7, 1, 8, 1))
sketch7.addConstraint(Sketcher.Constraint("Coincident", 8, 2, 9, 1))
sketch7.addConstraint(Sketcher.Constraint("Tangent", 9, 2, 7, 2))
sketch7.addConstraint(Sketcher.Constraint("Tangent", 10, 2, 11, 1))
sketch7.addConstraint(Sketcher.Constraint("Coincident", 11, 2, 12, 1))
sketch7.addConstraint(Sketcher.Constraint("Coincident", 12, 2, 13, 1))
sketch7.addConstraint(Sketcher.Constraint("Coincident", 13, 2, 10, 1))
sketch7.addConstraint(Sketcher.Constraint("Horizontal", 1))
sketch7.addConstraint(Sketcher.Constraint("Vertical", 2))
sketch7.addConstraint(Sketcher.Constraint("Horizontal", 3))
sketch7.addConstraint(Sketcher.Constraint("Vertical", 5))
sketch7.addConstraint(Sketcher.Constraint("Horizontal", 6))
sketch7.addConstraint(Sketcher.Constraint("Horizontal", 8))
sketch7.addConstraint(Sketcher.Constraint("Vertical", 9))
sketch7.addConstraint(Sketcher.Constraint("Horizontal", 10))
sketch7.addConstraint(Sketcher.Constraint("Horizontal", 12))
sketch7.addConstraint(Sketcher.Constraint("Vertical", 13))
sketch7.addConstraint(Sketcher.Constraint("Coincident", 4, 3, 0, 3))
sketch7.addConstraint(Sketcher.Constraint("Coincident", 11, 3, 7, 3))
sketch7.addConstraint(Sketcher.Constraint("Equal", 4, 7))
sketch7.addConstraint(Sketcher.Constraint("Equal", 0, 11))
sketch7.addConstraint(Sketcher.Constraint("Symmetric", 0, 3, 7, 3, -2))
sketch7.addConstraint(Sketcher.Constraint("Symmetric", 2, 2, 12, 2, -2))
sketch7.addConstraint(Sketcher.Constraint("Radius", 4, Q("0.07 in")))
sketch7.addConstraint(Sketcher.Constraint("Radius", 0, Q("0.028 in")))
sketch7.addConstraint(Sketcher.Constraint("DistanceX", 1, 2, 1, 1, Q("0.04 in")))
sketch7.addConstraint(Sketcher.Constraint("DistanceY", 2, 2, 2, 1, Q("0.03 in")))
sketch7.addConstraint(Sketcher.Constraint("DistanceX", -1, 1, 4, 1, Q("0.5 in")))
sketch7.addConstraint(Sketcher.Constraint("DistanceY", -1, 1, 0, 3, Q("0.16 in")))
pocket1 = doc.addObject("PartDesign::Pocket", "Pocket")
body.addObject(pocket1)
pocket1.Profile = sketch7
pocket1.Type = "ThroughAll"
pocket1.Midplane = True

# Sketch on XZ plane
sketch8 = doc.addObject("Sketcher::SketchObject", "Sketch007")
body.addObject(sketch8)
sketch8.AttachmentSupport = (doc.XZ_Plane, [""])
sketch8.MapMode = "FlatFace"
sketch8.AttachmentOffset = App.Placement(Vector(0, 0, -0.158 * 25.4), App.Rotation())
sketch8.addGeometry(Part.LineSegment(Vector(-11.6, -0.9, 0), Vector(-11.6, 0.9, 0)), False)
sketch8.addGeometry(Part.LineSegment(Vector(-11.6, 0.9, 0), Vector(-9.9, 0.9, 0)), False)
sketch8.addGeometry(Part.LineSegment(Vector(-9.9, 0.9, 0), Vector(-9.9, -0.9, 0)), False)
sketch8.addGeometry(Part.LineSegment(Vector(-9.9, -0.9, 0), Vector(-11.6, -0.9, 0)), False)
sketch8.addGeometry(Part.LineSegment(Vector(11.6, 0.9, 0), Vector(11.6, -0.9, 0)), False)
sketch8.addGeometry(Part.LineSegment(Vector(11.6, -0.9, 0), Vector(9.9, -0.9, 0)), False)
sketch8.addGeometry(Part.LineSegment(Vector(9.9, -0.9, 0), Vector(9.9, 0.9, 0)), False)
sketch8.addGeometry(Part.LineSegment(Vector(9.9, 0.9, 0), Vector(11.6, 0.9, 0)), False)
sketch8.addConstraint(Sketcher.Constraint("Coincident", 0, 2, 1, 1))
sketch8.addConstraint(Sketcher.Constraint("Coincident", 1, 2, 2, 1))
sketch8.addConstraint(Sketcher.Constraint("Coincident", 2, 2, 3, 1))
sketch8.addConstraint(Sketcher.Constraint("Coincident", 3, 2, 0, 1))
sketch8.addConstraint(Sketcher.Constraint("Coincident", 4, 2, 5, 1))
sketch8.addConstraint(Sketcher.Constraint("Coincident", 5, 2, 6, 1))
sketch8.addConstraint(Sketcher.Constraint("Coincident", 6, 2, 7, 1))
sketch8.addConstraint(Sketcher.Constraint("Coincident", 7, 2, 4, 1))
sketch8.addConstraint(Sketcher.Constraint("Vertical", 0))
sketch8.addConstraint(Sketcher.Constraint("Horizontal", 1))
sketch8.addConstraint(Sketcher.Constraint("Vertical", 2))
sketch8.addConstraint(Sketcher.Constraint("Horizontal", 3))
sketch8.addConstraint(Sketcher.Constraint("Vertical", 4))
sketch8.addConstraint(Sketcher.Constraint("Horizontal", 5))
sketch8.addConstraint(Sketcher.Constraint("Vertical", 6))
sketch8.addConstraint(Sketcher.Constraint("Horizontal", 7))
sketch8.addConstraint(Sketcher.Constraint("Symmetric", 0, 2, 4, 2, -1, 1))
sketch8.addConstraint(Sketcher.Constraint("Symmetric", 2, 2, 6, 2, -1, 1))
sketch8.addConstraint(Sketcher.Constraint("Horizontal", 3, 2, 4, 2))
sketch8.addConstraint(Sketcher.Constraint("DistanceY", 0, 1, 0, 2, Q("0.072 in")))
sketch8.addConstraint(Sketcher.Constraint("DistanceX", 1, 2, -1, 1, Q("0.39 in")))
sketch8.addConstraint(Sketcher.Constraint("DistanceX", 1, 1, 1, 2, 1.725383))
pocket2 = doc.addObject("PartDesign::Pocket", "Pocket001")
body.addObject(pocket2)
pocket2.Profile = sketch8
pocket2.Type = "ThroughAll"
pocket2.Reversed = True

# Sketch on YZ plane
sketch9 = doc.addObject("Sketcher::SketchObject", "Sketch008")
body.addObject(sketch9)
sketch9.AttachmentSupport = (doc.YZ_Plane, [""])
sketch9.MapMode = "FlatFace"
sketch9.AttachmentOffset = App.Placement(Vector(0, 0, 0.29 * 25.4), App.Rotation())
sketch9.addGeometry(Part.LineSegment(Vector(5.7, 13.4, 0), Vector(0, 12.4, 0)), False)
sketch9.addGeometry(Part.LineSegment(Vector(0, 12.4, 0), Vector(0.5, 12, 0)), False)
sketch9.addGeometry(Part.LineSegment(Vector(0.5, 12, 0), Vector(5.8, 12.9, 0)), False)
sketch9.addGeometry(Part.LineSegment(Vector(5.8, 12.9, 0), Vector(5.7, 13.4, 0)), False)
sketch9.addGeometry(Part.LineSegment(Vector(5.8, -12.9, 0), Vector(0.5, -12, 0)), False)
sketch9.addGeometry(Part.LineSegment(Vector(0.5, -12, 0), Vector(0, -12.4, 0)), False)
sketch9.addGeometry(Part.LineSegment(Vector(0, -12.4, 0), Vector(5.7, -13.4, 0)), False)
sketch9.addGeometry(Part.LineSegment(Vector(5.7, -13.4, 0), Vector(5.8, -12.9, 0)), False)
sketch9.addConstraint(Sketcher.Constraint("Coincident", 0, 2, 1, 1))
sketch9.addConstraint(Sketcher.Constraint("Coincident", 1, 2, 2, 1))
sketch9.addConstraint(Sketcher.Constraint("Coincident", 2, 2, 3, 1))
sketch9.addConstraint(Sketcher.Constraint("Coincident", 3, 2, 0, 1))
sketch9.addConstraint(Sketcher.Constraint("Coincident", 4, 2, 5, 1))
sketch9.addConstraint(Sketcher.Constraint("Coincident", 5, 2, 6, 1))
sketch9.addConstraint(Sketcher.Constraint("Coincident", 6, 2, 7, 1))
sketch9.addConstraint(Sketcher.Constraint("Coincident", 7, 2, 4, 1))
sketch9.addConstraint(Sketcher.Constraint("Symmetric", 0, 2, 5, 2, -1, 1))
sketch9.addConstraint(Sketcher.Constraint("Symmetric", 1, 2, 4, 2, -1))
sketch9.addConstraint(Sketcher.Constraint("Symmetric", 3, 2, 6, 2, -1))
sketch9.addConstraint(Sketcher.Constraint("Symmetric", 2, 2, 7, 2, -1))
sketch9.addConstraint(Sketcher.Constraint("PointOnObject", 0, 2, -2))
sketch9.addConstraint(Sketcher.Constraint("Parallel", 0, 2))
sketch9.addConstraint(Sketcher.Constraint("Perpendicular", 2, 3))
sketch9.addConstraint(Sketcher.Constraint("Angle", 0, Q("-170 deg")))
sketch9.addConstraint(Sketcher.Constraint("Angle", 1, Q("-40 deg")))
sketch9.addConstraint(Sketcher.Constraint("Distance", 3, Q("0.02 in")))
sketch9.addConstraint(Sketcher.Constraint("DistanceY", -1, 1, 0, 2, Q("0.49 in")))
sketch9.addConstraint(Sketcher.Constraint("Distance", 0, 5.756502))
pad7 = doc.addObject("PartDesign::Pad", "Pad006")
body.addObject(pad7)
pad7.Profile = sketch9
pad7.Length = 3.481912

# Sketch on YZ plane
sketch10 = doc.addObject("Sketcher::SketchObject", "Sketch009")
body.addObject(sketch10)
sketch10.AttachmentSupport = (doc.YZ_Plane, [""])
sketch10.MapMode = "FlatFace"
sketch10.AttachmentOffset = App.Placement(Vector(0, 0, -0.29 * 25.4), App.Rotation())
sketch10.addGeometry(Part.LineSegment(Vector(5.8, -12.9, 0), Vector(0.7, -12, 0)), False)
sketch10.addGeometry(Part.LineSegment(Vector(0.7, -12, 0), Vector(0, -12.4, 0)), False)
sketch10.addGeometry(Part.LineSegment(Vector(0, -12.4, 0), Vector(5.7, -13.4, 0)), False)
sketch10.addGeometry(Part.LineSegment(Vector(5.7, -13.4, 0), Vector(5.8, -12.9, 0)), False)
sketch10.addGeometry(Part.LineSegment(Vector(0.7, 12, 0), Vector(5.8, 12.9, 0)), False)
sketch10.addGeometry(Part.LineSegment(Vector(5.8, 12.9, 0), Vector(5.7, 13.4, 0)), False)
sketch10.addGeometry(Part.LineSegment(Vector(5.7, 13.4, 0), Vector(0, 12.4, 0)), False)
sketch10.addGeometry(Part.LineSegment(Vector(0, 12.4, 0), Vector(0.7, 12, 0)), False)
sketch10.addConstraint(Sketcher.Constraint("Coincident", 0, 2, 1, 1))
sketch10.addConstraint(Sketcher.Constraint("Coincident", 1, 2, 2, 1))
sketch10.addConstraint(Sketcher.Constraint("Coincident", 2, 2, 3, 1))
sketch10.addConstraint(Sketcher.Constraint("Coincident", 3, 2, 0, 1))
sketch10.addConstraint(Sketcher.Constraint("Coincident", 4, 2, 5, 1))
sketch10.addConstraint(Sketcher.Constraint("Coincident", 5, 2, 6, 1))
sketch10.addConstraint(Sketcher.Constraint("Coincident", 6, 2, 7, 1))
sketch10.addConstraint(Sketcher.Constraint("Coincident", 7, 2, 4, 1))
sketch10.addConstraint(Sketcher.Constraint("Symmetric", 1, 2, 6, 2, -1, 1))
sketch10.addConstraint(Sketcher.Constraint("Symmetric", 3, 2, 4, 2, -1))
sketch10.addConstraint(Sketcher.Constraint("Symmetric", 2, 2, 5, 2, -1))
sketch10.addConstraint(Sketcher.Constraint("Symmetric", 0, 2, 7, 2, -1))
sketch10.addConstraint(Sketcher.Constraint("PointOnObject", 1, 2, -2))
sketch10.addConstraint(Sketcher.Constraint("Parallel", 0, 2))
sketch10.addConstraint(Sketcher.Constraint("Perpendicular", 2, 3))
sketch10.addConstraint(Sketcher.Constraint("Angle", 0, Q("170 deg")))
sketch10.addConstraint(Sketcher.Constraint("Distance", 3, Q("0.02 in")))
sketch10.addConstraint(Sketcher.Constraint("DistanceY", 1, 2, -1, 1, Q("0.49 in")))
sketch10.addConstraint(Sketcher.Constraint("DistanceX", -1, 1, 0, 2, Q("0.026 in")))
sketch10.addConstraint(Sketcher.Constraint("Distance", 2, 5.756502))
pad8 = doc.addObject("PartDesign::Pad", "Pad007")
body.addObject(pad8)
pad8.Profile = sketch10
pad8.Length = 3.481912
pad8.Reversed = True
doc.recompute()

chamfer = doc.addObject("PartDesign::Chamfer", "Chamfer")
body.addObject(chamfer)
chamfer.Base = (pad8, edges_at(pad8, [
    (10.848, 5.713, 13.195),
    (7.366, 5.713, 13.195),
    (10.848, 5.713, -13.195),
    (7.366, 5.713, -13.195),
]))
chamfer.Size = Q("0.03 in")
doc.recompute()

chamfer2 = doc.addObject("PartDesign::Chamfer", "Chamfer001")
body.addObject(chamfer2)
chamfer2.Base = (chamfer, edges_at(chamfer, [
    (-7.366, 5.713, -13.195),
    (-10.848, 5.713, -13.195),
    (-7.366, 5.713, 13.195),
    (-10.848, 5.713, 13.195),
]))
chamfer2.Size = Q("0.03 in")
doc.recompute()

fillet = doc.addObject("PartDesign::Fillet", "Fillet")
body.addObject(fillet)
fillet.Base = (chamfer2, edges_at(chamfer2, [
    (-9.107, 0, -12.446),
    (-9.107, 0.66, -12.047),
    (-9.107, 0.66, 12.047),
    (-9.107, 0, 12.446),
]))
fillet.Radius = Q("0.015 in")
doc.recompute()

fillet2 = doc.addObject("PartDesign::Fillet", "Fillet001")
body.addObject(fillet2)
fillet2.Base = (fillet, edges_at(fillet, [
    (9.107, 0, -12.446),
    (9.107, 0.66, 12.047),
    (9.107, 0.66, -12.047),
    (9.107, 0, 12.446),
]))
fillet2.Radius = Q("0.015 in")

# Sketch on an angled plane
sketch11 = doc.addObject("Sketcher::SketchObject", "Sketch010")
body.addObject(sketch11)
sketch11.Placement = App.Placement(Vector(0, -2.128391, -12.070707), App.Rotation(Vector(-1, 0, 0), Vector(0, 0.984807753, -0.173648178), Vector(0, -0.173648178, -0.984807753), "ZXY"))
sketch11.addGeometry(Part.Circle(Vector(-9.1, 6.1, 0), Vector(0, 0, 1), 0.6), False)
sketch11.addGeometry(Part.Circle(Vector(9.1, 6.1, 0), Vector(0, 0, 1), 0.6), False)
sketch11.addConstraint(Sketcher.Constraint("Equal", 0, 1))
sketch11.addConstraint(Sketcher.Constraint("Symmetric", 0, 3, 1, 3, -2))
sketch11.addConstraint(Sketcher.Constraint("Diameter", 0, Q("0.05 in")))
sketch11.addConstraint(Sketcher.Constraint("DistanceX", 0, 3, -1, 1, Q("0.36 in")))
sketch11.addConstraint(Sketcher.Constraint("DistanceY", -1, 1, 0, 3, 6.139727))
pocket3 = doc.addObject("PartDesign::Pocket", "Pocket002")
body.addObject(pocket3)
pocket3.Profile = sketch11
pocket3.Length = Q("0.125 in")

# Sketch on an angled plane
sketch12 = doc.addObject("Sketcher::SketchObject", "Sketch011")
body.addObject(sketch12)
sketch12.Placement = App.Placement(Vector(0, -2.128391, 12.070707), App.Rotation(Vector(1, 0, 0), Vector(0, 0.984807753, 0.173648178), Vector(0, -0.173648178, 0.984807753), "ZXY"))
sketch12.addGeometry(Part.Circle(Vector(-9.1, 6.1, 0), Vector(0, 0, 1), 0.6), False)
sketch12.addGeometry(Part.Circle(Vector(9.1, 6.1, 0), Vector(0, 0, 1), 0.6), False)
sketch12.addConstraint(Sketcher.Constraint("Equal", 0, 1))
sketch12.addConstraint(Sketcher.Constraint("Symmetric", 0, 3, 1, 3, -2))
sketch12.addConstraint(Sketcher.Constraint("Diameter", 0, Q("0.05 in")))
sketch12.addConstraint(Sketcher.Constraint("DistanceX", 0, 3, -1, 1, Q("0.36 in")))
sketch12.addConstraint(Sketcher.Constraint("DistanceY", -1, 1, 0, 3, 6.139727))
pocket4 = doc.addObject("PartDesign::Pocket", "Pocket003")
body.addObject(pocket4)
pocket4.Profile = sketch12
pocket4.Length = Q("0.125 in")

doc.recompute()
